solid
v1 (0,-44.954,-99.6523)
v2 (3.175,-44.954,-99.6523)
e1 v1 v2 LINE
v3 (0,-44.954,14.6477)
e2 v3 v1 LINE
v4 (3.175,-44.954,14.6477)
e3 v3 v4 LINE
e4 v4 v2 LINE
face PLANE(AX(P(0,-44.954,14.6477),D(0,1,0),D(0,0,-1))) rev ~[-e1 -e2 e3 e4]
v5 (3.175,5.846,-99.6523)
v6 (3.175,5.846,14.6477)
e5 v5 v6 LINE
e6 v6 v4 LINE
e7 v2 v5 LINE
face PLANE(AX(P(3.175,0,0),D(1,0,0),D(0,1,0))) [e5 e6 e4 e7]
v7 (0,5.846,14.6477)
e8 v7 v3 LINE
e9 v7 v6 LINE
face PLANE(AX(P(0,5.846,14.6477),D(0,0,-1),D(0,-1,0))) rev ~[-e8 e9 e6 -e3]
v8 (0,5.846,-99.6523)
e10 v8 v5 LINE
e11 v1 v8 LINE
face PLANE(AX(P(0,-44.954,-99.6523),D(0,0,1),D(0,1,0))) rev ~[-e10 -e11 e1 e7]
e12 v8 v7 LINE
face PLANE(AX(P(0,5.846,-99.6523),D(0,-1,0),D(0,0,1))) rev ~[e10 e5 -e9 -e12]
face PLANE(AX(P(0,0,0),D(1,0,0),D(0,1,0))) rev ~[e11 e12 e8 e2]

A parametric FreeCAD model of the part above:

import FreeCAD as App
import Part
import Sketcher

V = App.Vector
Q = App.Units.Quantity

doc = App.newDocument("Part")
params = doc.addObject("Spreadsheet::Sheet", "Params")
for row, (alias, value) in enumerate([
    ("sketch1_width", "2 in"),
    ("sketch1_height", "4.5 in"),
    ("pad1_length", "0.125 in"),
], start=1):
    params.set(f"A{row}", alias)
    params.set(f"B{row}", "=" + value)
    params.setAlias(f"B{row}", alias)

body = doc.addObject("PartDesign::Body", "Body")

# Sketch on YZ plane
sketch1 = body.newObject("Sketcher::SketchObject", "Sketch")
sketch1.AttachmentSupport = (doc.getObject("YZ_Plane"), [""])
sketch1.MapMode = "FlatFace"
sketch1.addGeometry(Part.LineSegment(V(6, -100, 0), V(6, 15, 0)), False)
sketch1.addGeometry(Part.LineSegment(V(6, 15, 0), V(-45, 15, 0)), False)
sketch1.addGeometry(Part.LineSegment(V(-45, 15, 0), V(-45, -100, 0)), False)
sketch1.addGeometry(Part.LineSegment(V(-45, -100, 0), V(6, -100, 0)), False)
sketch1.addConstraint(Sketcher.Constraint("Coincident", 0, 2, 1, 1))
sketch1.addConstraint(Sketcher.Constraint("Coincident", 1, 2, 2, 1))
sketch1.addConstraint(Sketcher.Constraint("Coincident", 2, 2, 3, 1))
sketch1.addConstraint(Sketcher.Constraint("Coincident", 3, 2, 0, 1))
sketch1.addConstraint(Sketcher.Constraint("Vertical", 0))
sketch1.addConstraint(Sketcher.Constraint("Horizontal", 1))
sketch1.addConstraint(Sketcher.Constraint("Vertical", 2))
sketch1.addConstraint(Sketcher.Constraint("Horizontal", 3))
sketch1.addConstraint(Sketcher.Constraint("DistanceX", 1, 2, 1, 1, Q("2 in")))
sketch1.addConstraint(Sketcher.Constraint("DistanceY", 0, 1, 0, 2, Q("4.5 in")))
sketch1.addConstraint(Sketcher.Constraint("DistanceX", -1, 1, 0, 2, 5.846))
sketch1.addConstraint(Sketcher.Constraint("DistanceY", -1, 1, 0, 2, 14.6477))
sketch1.setExpression("Constraints[8]", "Params.sketch1_width")
sketch1.setExpression("Constraints[9]", "Params.sketch1_height")
pad1 = body.newObject("PartDesign::Pad", "Pad")
pad1.Profile = sketch1
pad1.setExpression("Length", "Params.pad1_length")

doc.recompute()
